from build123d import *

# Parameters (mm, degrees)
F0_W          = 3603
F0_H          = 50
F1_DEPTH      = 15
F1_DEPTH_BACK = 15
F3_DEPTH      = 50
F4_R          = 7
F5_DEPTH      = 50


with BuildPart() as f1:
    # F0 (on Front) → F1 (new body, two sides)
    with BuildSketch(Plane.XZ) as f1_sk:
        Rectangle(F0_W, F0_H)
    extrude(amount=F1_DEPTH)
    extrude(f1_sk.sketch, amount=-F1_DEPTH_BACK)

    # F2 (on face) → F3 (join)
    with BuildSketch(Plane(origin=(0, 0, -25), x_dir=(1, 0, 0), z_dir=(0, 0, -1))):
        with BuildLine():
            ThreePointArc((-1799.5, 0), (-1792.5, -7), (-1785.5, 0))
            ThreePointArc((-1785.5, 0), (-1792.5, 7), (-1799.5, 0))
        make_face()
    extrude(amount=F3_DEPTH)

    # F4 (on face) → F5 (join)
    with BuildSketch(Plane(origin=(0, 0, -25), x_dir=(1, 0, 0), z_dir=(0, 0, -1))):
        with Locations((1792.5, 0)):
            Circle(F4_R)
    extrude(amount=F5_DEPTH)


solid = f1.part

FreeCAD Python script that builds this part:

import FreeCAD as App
import Part
import Sketcher
Q = App.Units.Quantity


def add_polygon(sketch, points):
    """Adds a closed chain of lines whose ends are joined by coincident constraints."""
    first, n = sketch.GeometryCount, len(points)
    for a, b in zip(points, points[1:] + points[:1]):
        sketch.addGeometry(Part.LineSegment(App.Vector(*a, 0), App.Vector(*b, 0)), False)
    for i in range(n):
        sketch.addConstraint(Sketcher.Constraint("Coincident", first + i, 2, first + (i + 1) % n, 1))

doc = App.newDocument("Part")
body = doc.addObject("PartDesign::Body", "Body")

sketch1 = body.newObject("Sketcher::SketchObject", "Sketch")
sketch1.AttachmentSupport = (doc.getObject("XZ_Plane"), [""])
sketch1.MapMode = "FlatFace"
add_polygon(sketch1, [(-1801.5, 25), (-1801.5, -25), (1801.5, -25), (1801.5, 25)])
sketch1.addConstraint([
    Sketcher.Constraint("Vertical", 0),
    Sketcher.Constraint("Horizontal", 1),
    Sketcher.Constraint("Vertical", 2),
    Sketcher.Constraint("Horizontal", 3),
    Sketcher.Constraint("Symmetric", 0, 2, 2, 2, -1, 1),
    Sketcher.Constraint("DistanceX", 1, 1, 1, 2, Q("3603 mm")),
    Sketcher.Constraint("DistanceY", 0, 2, 0, 1, Q("50 mm")),
])
pad1 = body.newObject("PartDesign::Pad", "Pad")
pad1.Profile = sketch1
pad1.Type = "TwoLengths"
pad1.Length = 15
pad1.Length2 = 15

sketch2 = body.newObject("Sketcher::SketchObject", "Sketch001")
sketch2.AttachmentSupport = (doc.getObject("XY_Plane"), [""])
sketch2.MapMode = "FlatFace"
sketch2.AttachmentOffset = App.Placement(App.Vector(0, 0, -25), App.Rotation())
sketch2.addGeometry(Part.Circle(App.Vector(-1792.5, 0, 0), App.Vector(0, 0, 1), 7), False)
sketch2.addConstraint([
    Sketcher.Constraint("PointOnObject", 0, 3, -1),
    Sketcher.Constraint("Diameter", 0, Q("14 mm")),
    Sketcher.Constraint("DistanceX", 0, 3, -1, 1, Q("1792.5 mm")),
])
pad2 = body.newObject("PartDesign::Pad", "Pad001")
pad2.Profile = sketch2
pad2.Length = 50
pad2.Reversed = True

sketch3 = body.newObject("Sketcher::SketchObject", "Sketch002")
sketch3.AttachmentSupport = (doc.getObject("XY_Plane"), [""])
sketch3.MapMode = "FlatFace"
sketch3.AttachmentOffset = App.Placement(App.Vector(0, 0, -25), App.Rotation())
sketch3.addGeometry(Part.Circle(App.Vector(1792.5, 0, 0), App.Vector(0, 0, 1), 7), False)
sketch3.addConstraint([
    Sketcher.Constraint("PointOnObject", 0, 3, -1),
    Sketcher.Constraint("Diameter", 0, Q("14 mm")),
    Sketcher.Constraint("DistanceX", -1, 1, 0, 3, Q("1792.5 mm")),
])
pad3 = body.newObject("PartDesign::Pad", "Pad002")
pad3.Profile = sketch3
pad3.Length = 50
pad3.Reversed = True

doc.recompute()
